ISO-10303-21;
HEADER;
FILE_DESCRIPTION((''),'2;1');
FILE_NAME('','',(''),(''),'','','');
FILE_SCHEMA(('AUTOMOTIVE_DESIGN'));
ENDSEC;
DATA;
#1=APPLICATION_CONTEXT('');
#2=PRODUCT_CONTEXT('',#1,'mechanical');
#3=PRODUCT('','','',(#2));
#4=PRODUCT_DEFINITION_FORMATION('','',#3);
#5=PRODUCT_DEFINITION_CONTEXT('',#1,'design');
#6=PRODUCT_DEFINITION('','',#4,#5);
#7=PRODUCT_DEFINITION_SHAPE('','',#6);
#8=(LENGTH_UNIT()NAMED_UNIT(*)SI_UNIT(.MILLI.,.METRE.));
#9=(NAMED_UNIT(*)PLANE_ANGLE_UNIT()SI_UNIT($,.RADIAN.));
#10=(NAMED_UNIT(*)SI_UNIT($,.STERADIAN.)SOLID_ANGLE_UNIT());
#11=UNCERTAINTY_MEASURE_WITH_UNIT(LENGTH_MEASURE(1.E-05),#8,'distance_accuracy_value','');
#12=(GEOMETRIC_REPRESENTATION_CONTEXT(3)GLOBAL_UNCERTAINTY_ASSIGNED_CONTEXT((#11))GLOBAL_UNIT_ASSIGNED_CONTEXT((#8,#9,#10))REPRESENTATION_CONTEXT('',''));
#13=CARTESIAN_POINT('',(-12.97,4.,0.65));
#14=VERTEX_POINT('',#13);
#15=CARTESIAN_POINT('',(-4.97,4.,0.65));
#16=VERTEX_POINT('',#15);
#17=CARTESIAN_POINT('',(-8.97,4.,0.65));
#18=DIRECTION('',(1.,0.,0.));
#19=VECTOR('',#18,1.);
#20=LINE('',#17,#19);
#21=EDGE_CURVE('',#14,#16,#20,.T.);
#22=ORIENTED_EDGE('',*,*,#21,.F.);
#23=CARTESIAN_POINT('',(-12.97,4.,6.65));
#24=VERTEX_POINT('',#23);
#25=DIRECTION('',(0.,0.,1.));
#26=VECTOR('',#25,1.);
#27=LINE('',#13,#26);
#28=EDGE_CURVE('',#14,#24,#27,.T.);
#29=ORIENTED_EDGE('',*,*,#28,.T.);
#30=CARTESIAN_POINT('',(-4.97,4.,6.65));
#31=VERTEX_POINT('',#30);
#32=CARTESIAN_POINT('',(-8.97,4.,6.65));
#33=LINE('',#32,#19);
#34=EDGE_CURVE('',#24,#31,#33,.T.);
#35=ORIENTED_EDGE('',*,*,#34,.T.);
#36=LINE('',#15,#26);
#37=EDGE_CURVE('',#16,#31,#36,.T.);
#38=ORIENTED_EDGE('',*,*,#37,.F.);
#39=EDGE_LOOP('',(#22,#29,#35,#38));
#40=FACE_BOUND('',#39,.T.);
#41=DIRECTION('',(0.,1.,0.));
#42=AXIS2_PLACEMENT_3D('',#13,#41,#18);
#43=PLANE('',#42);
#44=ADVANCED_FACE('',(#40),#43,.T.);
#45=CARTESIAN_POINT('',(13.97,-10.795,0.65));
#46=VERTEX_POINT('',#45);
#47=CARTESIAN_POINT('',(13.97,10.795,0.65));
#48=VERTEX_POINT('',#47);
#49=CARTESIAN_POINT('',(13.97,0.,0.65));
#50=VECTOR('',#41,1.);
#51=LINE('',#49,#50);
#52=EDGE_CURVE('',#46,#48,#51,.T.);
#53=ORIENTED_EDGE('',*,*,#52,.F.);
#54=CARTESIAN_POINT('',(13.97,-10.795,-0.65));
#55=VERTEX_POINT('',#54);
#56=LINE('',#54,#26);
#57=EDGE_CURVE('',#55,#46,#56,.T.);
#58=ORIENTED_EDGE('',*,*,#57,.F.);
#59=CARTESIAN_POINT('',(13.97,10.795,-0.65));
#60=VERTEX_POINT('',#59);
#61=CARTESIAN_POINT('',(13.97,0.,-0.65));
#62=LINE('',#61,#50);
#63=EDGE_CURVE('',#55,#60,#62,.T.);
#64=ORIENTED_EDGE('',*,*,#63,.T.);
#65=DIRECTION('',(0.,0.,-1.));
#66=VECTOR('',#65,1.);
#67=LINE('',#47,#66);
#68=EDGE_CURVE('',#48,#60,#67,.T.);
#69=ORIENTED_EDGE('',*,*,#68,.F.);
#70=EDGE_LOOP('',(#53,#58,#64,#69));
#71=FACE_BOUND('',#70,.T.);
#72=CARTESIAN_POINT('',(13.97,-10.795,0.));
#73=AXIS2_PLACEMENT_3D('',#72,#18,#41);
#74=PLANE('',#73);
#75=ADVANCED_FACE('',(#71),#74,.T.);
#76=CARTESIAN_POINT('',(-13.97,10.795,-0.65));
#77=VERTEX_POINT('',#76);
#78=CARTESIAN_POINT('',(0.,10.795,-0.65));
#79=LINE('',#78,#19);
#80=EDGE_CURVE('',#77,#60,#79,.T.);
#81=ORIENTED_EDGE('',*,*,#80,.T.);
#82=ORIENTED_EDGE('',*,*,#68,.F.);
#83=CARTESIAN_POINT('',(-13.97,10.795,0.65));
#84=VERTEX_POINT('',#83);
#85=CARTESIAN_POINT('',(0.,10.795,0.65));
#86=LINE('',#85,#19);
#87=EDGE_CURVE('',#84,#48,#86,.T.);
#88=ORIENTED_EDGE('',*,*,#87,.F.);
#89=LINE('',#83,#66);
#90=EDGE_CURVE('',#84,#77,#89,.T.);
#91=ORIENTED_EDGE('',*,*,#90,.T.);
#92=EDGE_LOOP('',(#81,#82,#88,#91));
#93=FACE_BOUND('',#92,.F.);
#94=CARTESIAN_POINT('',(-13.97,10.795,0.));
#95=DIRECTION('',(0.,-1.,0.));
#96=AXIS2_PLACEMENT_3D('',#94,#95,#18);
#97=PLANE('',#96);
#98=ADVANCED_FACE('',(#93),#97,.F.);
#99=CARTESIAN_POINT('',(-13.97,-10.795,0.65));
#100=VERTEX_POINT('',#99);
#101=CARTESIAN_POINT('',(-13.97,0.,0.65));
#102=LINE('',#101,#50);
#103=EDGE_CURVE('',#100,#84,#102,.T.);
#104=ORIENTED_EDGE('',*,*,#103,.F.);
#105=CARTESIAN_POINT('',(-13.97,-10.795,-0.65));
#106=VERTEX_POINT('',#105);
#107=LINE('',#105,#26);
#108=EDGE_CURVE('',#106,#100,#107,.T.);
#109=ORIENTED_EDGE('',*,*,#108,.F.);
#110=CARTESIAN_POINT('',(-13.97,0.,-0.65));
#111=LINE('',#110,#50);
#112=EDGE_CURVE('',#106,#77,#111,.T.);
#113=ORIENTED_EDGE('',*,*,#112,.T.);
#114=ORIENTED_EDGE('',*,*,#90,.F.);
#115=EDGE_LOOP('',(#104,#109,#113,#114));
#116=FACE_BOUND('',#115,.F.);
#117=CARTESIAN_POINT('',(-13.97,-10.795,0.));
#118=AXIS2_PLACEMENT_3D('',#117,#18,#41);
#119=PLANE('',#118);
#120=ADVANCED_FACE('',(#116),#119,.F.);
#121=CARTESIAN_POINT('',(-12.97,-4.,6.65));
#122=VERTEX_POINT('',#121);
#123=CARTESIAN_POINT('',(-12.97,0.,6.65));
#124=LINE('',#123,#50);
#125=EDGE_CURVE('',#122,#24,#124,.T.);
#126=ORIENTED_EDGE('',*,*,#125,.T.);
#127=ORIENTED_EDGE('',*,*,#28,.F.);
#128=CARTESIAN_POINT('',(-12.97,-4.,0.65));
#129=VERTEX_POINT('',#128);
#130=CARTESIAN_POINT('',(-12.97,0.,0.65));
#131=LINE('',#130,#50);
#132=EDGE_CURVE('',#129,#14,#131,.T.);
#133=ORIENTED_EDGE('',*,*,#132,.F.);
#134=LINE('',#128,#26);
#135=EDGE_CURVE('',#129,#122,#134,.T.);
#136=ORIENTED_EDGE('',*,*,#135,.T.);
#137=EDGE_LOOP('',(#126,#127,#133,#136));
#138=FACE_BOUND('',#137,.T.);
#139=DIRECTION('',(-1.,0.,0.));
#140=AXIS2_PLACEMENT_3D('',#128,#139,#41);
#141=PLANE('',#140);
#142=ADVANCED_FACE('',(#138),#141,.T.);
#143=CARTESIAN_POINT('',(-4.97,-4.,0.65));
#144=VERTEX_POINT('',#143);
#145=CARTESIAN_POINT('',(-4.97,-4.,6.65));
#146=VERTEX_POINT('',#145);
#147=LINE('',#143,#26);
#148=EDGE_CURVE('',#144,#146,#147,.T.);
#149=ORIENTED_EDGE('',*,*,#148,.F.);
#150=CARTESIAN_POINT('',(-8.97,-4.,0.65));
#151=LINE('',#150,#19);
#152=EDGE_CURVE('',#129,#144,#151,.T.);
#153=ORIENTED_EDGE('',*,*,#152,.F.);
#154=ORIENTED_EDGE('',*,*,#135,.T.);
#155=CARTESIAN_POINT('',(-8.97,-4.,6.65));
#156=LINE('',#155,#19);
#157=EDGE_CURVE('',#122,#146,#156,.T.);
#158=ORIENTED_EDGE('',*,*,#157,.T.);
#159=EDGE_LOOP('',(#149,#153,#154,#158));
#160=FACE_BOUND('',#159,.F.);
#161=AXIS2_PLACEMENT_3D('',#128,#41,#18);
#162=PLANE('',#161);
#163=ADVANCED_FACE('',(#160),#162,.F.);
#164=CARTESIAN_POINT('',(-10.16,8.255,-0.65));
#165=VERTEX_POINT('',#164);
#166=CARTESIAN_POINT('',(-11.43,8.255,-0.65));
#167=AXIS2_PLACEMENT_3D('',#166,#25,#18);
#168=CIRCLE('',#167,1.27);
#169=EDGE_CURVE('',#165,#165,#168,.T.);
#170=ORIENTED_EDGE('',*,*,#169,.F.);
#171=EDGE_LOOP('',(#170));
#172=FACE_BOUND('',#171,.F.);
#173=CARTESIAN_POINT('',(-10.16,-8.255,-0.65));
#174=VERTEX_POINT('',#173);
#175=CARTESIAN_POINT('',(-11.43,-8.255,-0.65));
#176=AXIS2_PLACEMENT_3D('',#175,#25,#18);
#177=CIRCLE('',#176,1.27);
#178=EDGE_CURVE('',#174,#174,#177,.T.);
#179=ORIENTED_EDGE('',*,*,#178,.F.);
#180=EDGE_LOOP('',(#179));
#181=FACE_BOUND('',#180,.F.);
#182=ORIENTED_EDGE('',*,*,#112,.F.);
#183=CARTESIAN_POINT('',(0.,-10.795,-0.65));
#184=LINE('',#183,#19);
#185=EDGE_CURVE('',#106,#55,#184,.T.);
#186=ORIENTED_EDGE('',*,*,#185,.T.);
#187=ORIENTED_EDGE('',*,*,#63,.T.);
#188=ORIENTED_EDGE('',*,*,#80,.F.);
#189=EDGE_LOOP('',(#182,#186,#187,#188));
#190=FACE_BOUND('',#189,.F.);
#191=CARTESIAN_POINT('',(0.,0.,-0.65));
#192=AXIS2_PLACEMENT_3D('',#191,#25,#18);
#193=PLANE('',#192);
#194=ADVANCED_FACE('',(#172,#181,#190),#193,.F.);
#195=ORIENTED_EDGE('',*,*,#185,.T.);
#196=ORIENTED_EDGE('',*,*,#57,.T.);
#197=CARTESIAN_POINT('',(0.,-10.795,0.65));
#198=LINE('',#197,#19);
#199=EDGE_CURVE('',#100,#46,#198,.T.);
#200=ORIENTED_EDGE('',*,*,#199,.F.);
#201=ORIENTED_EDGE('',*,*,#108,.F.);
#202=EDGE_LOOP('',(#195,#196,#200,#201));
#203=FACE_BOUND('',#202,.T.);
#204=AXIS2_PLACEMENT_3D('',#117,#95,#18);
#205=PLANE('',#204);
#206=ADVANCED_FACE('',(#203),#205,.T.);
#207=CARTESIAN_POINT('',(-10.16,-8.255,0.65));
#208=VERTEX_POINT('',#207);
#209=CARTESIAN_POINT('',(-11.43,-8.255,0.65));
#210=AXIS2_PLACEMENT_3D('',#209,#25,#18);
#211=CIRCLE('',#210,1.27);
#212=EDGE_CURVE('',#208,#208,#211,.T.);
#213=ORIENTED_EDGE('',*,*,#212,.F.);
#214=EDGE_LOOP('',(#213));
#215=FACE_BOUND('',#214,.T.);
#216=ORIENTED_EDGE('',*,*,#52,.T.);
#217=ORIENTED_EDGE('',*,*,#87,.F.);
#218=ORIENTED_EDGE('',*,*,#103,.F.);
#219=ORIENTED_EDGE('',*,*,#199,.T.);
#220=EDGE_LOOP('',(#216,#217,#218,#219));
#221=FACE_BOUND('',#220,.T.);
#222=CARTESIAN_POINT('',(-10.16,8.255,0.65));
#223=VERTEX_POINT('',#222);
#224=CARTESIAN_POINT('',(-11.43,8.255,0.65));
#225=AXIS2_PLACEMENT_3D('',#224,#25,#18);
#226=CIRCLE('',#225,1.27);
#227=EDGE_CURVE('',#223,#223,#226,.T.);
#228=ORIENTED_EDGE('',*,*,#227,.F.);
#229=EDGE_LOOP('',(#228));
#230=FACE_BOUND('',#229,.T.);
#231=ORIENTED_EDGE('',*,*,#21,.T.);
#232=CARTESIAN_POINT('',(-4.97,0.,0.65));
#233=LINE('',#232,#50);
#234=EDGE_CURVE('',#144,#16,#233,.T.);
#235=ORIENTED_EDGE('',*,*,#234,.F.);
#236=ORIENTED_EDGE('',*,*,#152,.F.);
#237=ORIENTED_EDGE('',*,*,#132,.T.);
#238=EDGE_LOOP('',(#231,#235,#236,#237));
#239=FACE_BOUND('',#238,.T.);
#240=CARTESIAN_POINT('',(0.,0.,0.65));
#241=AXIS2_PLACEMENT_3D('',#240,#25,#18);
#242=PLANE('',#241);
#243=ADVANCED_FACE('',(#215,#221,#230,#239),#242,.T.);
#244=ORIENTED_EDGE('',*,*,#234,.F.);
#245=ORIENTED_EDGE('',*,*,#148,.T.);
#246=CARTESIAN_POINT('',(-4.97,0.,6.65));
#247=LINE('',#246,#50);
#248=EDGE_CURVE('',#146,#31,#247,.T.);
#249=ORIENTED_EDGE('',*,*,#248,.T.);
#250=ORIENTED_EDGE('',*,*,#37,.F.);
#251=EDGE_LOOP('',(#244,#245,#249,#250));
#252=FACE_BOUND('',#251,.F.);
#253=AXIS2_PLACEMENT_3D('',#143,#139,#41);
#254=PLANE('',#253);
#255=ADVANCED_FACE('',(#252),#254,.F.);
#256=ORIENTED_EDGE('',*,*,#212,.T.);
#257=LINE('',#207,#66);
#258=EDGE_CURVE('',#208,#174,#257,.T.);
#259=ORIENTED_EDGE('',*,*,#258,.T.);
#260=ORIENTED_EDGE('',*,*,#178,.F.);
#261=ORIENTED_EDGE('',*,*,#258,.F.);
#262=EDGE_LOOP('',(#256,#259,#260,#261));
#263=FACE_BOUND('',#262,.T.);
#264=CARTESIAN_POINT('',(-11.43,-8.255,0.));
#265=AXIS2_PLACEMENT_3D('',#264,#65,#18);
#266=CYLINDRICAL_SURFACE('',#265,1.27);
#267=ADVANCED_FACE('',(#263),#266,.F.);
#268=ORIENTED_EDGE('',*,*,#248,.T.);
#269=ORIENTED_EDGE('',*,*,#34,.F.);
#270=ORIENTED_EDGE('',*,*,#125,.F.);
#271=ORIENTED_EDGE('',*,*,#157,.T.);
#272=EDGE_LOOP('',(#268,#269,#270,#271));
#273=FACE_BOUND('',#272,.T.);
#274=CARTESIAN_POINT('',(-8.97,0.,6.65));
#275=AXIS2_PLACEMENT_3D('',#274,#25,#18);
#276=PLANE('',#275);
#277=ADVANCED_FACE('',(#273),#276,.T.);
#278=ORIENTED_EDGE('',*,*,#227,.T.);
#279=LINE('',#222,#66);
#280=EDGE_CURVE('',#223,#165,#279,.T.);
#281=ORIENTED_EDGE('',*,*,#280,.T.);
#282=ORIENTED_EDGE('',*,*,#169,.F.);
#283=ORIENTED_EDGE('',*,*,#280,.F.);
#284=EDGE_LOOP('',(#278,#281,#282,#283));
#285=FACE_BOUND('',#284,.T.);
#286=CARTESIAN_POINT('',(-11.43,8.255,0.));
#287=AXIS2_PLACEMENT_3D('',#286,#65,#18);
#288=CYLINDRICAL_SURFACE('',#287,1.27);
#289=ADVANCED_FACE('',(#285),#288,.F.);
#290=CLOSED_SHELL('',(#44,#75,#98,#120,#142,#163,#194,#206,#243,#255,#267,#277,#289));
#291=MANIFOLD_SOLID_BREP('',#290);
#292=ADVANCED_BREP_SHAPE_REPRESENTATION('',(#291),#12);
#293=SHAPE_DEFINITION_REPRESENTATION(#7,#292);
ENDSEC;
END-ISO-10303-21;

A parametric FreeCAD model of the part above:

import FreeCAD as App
import Part
import Sketcher
from FreeCAD import Vector
Q = App.Units.Quantity

doc = App.newDocument("Part")
body = doc.addObject("PartDesign::Body", "Body")

# Sketch on XY plane
sketch1 = doc.addObject("Sketcher::SketchObject", "Sketch")
body.addObject(sketch1)
sketch1.AttachmentSupport = (doc.XY_Plane, [""])
sketch1.MapMode = "FlatFace"
sketch1.addGeometry([
    Part.LineSegment(Vector(-14, 10.8, 0), Vector(-14, -10.8, 0)),  # 0
    Part.LineSegment(Vector(-14, -10.8, 0), Vector(14, -10.8, 0)),  # 1
    Part.LineSegment(Vector(14, -10.8, 0), Vector(14, 10.8, 0)),  # 2
    Part.LineSegment(Vector(14, 10.8, 0), Vector(-14, 10.8, 0)),  # 3
    Part.Circle(Vector(-11.4, -8.3, 0), Vector(0, 0, 1), 1.3),  # 4
    Part.Circle(Vector(-11.4, 8.3, 0), Vector(0, 0, 1), 1.3),  # 5
], False)
sketch1.addConstraint([
    Sketcher.Constraint("Coincident", 0, 2, 1, 1),
    Sketcher.Constraint("Coincident", 1, 2, 2, 1),
    Sketcher.Constraint("Coincident", 2, 2, 3, 1),
    Sketcher.Constraint("Coincident", 3, 2, 0, 1),
    Sketcher.Constraint("Vertical", 0),
    Sketcher.Constraint("Horizontal", 1),
    Sketcher.Constraint("Vertical", 2),
    Sketcher.Constraint("Horizontal", 3),
    Sketcher.Constraint("Equal", 4, 5),
    Sketcher.Constraint("Symmetric", 0, 2, 2, 2, -1, 1),
    Sketcher.Constraint("Symmetric", 4, 3, 5, 3, -1),
    Sketcher.Constraint("Diameter", 4, Q("0.1 in")),
    Sketcher.Constraint("DistanceX", 1, 1, 1, 2, Q("1.1 in")),
    Sketcher.Constraint("DistanceX", 4, 3, 1, 2, Q("1 in")),
    Sketcher.Constraint("DistanceY", 0, 2, 0, 1, Q("0.85 in")),
    Sketcher.Constraint("DistanceY", 0, 2, 4, 3, Q("0.1 in")),
])
pad1 = doc.addObject("PartDesign::Pad", "Pad")
body.addObject(pad1)
pad1.Profile = sketch1
pad1.Length = 1.3
pad1.Midplane = True

# Sketch on XY plane
sketch2 = doc.addObject("Sketcher::SketchObject", "Sketch001")
body.addObject(sketch2)
sketch2.AttachmentSupport = (doc.XY_Plane, [""])
sketch2.MapMode = "FlatFace"
sketch2.AttachmentOffset = App.Placement(Vector(0, 0, 0.65), App.Rotation())
sketch2.addGeometry([
    Part.LineSegment(Vector(-13, 4, 0), Vector(-13, -4, 0)),
    Part.LineSegment(Vector(-13, -4, 0), Vector(-5, -4, 0)),
    Part.LineSegment(Vector(-5, -4, 0), Vector(-5, 4, 0)),
    Part.LineSegment(Vector(-5, 4, 0), Vector(-13, 4, 0)),
], False)
sketch2.addConstraint([
    Sketcher.Constraint("Coincident", 0, 2, 1, 1),
    Sketcher.Constraint("Coincident", 1, 2, 2, 1),
    Sketcher.Constraint("Coincident", 2, 2, 3, 1),
    Sketcher.Constraint("Coincident", 3, 2, 0, 1),
    Sketcher.Constraint("Vertical", 0),
    Sketcher.Constraint("Horizontal", 1),
    Sketcher.Constraint("Vertical", 2),
    Sketcher.Constraint("Horizontal", 3),
    Sketcher.Constraint("Equal", 3, 0),
    Sketcher.Constraint("DistanceX", 1, 1, 1, 2, Q("8 mm")),
    Sketcher.Constraint("DistanceX", 0, 2, -1, 1, Q("12.97 mm")),
    Sketcher.Constraint("DistanceY", 0, 2, -1, 1, Q("4 mm")),
])
pad2 = doc.addObject("PartDesign::Pad", "Pad001")
body.addObject(pad2)
pad2.Profile = sketch2
pad2.Length = 6

doc.recompute()
